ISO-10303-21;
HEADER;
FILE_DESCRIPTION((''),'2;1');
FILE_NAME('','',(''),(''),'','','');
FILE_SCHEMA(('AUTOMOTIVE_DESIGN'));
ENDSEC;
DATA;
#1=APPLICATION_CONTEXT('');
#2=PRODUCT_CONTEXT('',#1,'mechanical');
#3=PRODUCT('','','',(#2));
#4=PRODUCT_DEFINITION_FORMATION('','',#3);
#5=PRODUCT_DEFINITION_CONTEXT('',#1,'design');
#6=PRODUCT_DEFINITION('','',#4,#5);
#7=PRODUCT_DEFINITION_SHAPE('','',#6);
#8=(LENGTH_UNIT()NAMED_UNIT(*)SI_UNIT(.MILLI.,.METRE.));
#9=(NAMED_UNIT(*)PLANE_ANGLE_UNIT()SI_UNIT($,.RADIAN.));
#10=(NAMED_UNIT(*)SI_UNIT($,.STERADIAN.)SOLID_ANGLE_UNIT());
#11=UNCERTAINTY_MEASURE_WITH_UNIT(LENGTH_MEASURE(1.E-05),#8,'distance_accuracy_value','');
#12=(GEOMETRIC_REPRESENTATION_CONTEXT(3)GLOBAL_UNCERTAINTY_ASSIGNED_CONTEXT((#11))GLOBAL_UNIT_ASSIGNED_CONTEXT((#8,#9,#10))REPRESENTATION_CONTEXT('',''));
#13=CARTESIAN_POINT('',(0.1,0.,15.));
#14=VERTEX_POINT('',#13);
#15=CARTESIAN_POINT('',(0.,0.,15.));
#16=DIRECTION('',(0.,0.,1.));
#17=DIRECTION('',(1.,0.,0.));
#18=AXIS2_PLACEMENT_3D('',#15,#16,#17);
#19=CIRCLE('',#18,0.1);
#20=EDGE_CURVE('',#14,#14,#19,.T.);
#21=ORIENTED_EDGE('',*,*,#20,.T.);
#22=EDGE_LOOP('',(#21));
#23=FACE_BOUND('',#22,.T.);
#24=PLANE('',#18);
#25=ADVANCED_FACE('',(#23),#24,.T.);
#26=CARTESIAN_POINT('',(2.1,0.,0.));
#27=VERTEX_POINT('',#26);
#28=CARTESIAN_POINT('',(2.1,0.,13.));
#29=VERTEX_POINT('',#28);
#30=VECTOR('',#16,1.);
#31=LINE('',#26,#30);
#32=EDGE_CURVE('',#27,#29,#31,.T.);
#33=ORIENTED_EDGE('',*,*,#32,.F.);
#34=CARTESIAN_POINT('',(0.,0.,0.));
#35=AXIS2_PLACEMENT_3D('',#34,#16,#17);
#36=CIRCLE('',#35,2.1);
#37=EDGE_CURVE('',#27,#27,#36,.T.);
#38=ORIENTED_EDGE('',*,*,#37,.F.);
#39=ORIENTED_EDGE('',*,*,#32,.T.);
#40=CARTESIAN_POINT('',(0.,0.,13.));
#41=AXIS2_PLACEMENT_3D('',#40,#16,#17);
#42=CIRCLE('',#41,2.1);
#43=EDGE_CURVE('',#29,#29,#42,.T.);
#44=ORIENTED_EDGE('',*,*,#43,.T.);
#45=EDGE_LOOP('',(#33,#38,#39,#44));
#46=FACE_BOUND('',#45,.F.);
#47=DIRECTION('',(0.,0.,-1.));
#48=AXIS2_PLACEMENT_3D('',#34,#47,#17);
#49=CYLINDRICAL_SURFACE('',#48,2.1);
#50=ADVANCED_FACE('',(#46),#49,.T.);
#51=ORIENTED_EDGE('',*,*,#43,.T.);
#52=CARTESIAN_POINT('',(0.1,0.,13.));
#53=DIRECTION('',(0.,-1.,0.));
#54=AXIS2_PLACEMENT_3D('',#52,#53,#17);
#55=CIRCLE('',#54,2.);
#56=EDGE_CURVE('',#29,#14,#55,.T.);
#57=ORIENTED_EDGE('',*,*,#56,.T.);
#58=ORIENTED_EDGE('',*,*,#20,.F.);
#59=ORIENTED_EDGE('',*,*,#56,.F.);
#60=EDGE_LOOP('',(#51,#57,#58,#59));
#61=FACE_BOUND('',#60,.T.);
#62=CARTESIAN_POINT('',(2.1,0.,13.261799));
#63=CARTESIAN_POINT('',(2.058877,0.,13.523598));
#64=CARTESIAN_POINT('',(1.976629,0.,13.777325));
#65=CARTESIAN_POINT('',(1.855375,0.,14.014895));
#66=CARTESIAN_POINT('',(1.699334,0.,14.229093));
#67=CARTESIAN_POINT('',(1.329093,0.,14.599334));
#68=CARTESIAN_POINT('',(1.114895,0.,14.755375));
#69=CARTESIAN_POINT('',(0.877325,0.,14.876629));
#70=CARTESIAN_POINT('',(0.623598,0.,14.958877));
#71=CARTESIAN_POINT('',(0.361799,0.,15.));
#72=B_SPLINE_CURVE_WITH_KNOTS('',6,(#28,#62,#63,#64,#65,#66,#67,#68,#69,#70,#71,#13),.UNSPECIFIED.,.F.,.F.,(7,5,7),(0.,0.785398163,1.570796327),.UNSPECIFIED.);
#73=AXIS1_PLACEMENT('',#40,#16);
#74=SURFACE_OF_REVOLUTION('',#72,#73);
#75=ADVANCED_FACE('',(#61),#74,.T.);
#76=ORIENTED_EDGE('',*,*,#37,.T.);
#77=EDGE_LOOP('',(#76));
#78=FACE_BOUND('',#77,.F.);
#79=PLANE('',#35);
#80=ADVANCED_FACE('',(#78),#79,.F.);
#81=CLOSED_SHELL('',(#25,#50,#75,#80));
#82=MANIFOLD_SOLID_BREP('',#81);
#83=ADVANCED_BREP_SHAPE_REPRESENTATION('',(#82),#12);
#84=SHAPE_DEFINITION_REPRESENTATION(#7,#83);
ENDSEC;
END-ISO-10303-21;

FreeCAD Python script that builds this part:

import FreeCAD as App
import Part
import Sketcher


def edges_at(feature, points):
    """Names of the edges that pass closest to the given points."""
    edges = feature.Shape.Edges
    near = lambda p: min(range(len(edges)), key=lambda i: edges[i].distToShape(Part.Vertex(*p))[0])
    return sorted({f"Edge{near(p) + 1}" for p in points})

doc = App.newDocument("Part")
body = doc.addObject("PartDesign::Body", "Body")

# Sketch on XY plane
sketch1 = doc.addObject("Sketcher::SketchObject", "Sketch")
body.addObject(sketch1)
sketch1.AttachmentSupport = (doc.XY_Plane, [""])
sketch1.MapMode = "FlatFace"
sketch1.addGeometry(Part.Circle(App.Vector(0, 0, 0), App.Vector(0, 0, 1), 2.1), False)
sketch1.addConstraint(Sketcher.Constraint("Coincident", 0, 3, -1, 1))
sketch1.addConstraint(Sketcher.Constraint("Diameter", 0, 4.2))
pad1 = doc.addObject("PartDesign::Pad", "Pad")
body.addObject(pad1)
pad1.Profile = sketch1
pad1.Length = 15
doc.recompute()

fillet = doc.addObject("PartDesign::Fillet", "Fillet")
body.addObject(fillet)
fillet.Base = (pad1, edges_at(pad1, [(-2.1, 0, 15)]))
fillet.Radius = 2

doc.recompute()
